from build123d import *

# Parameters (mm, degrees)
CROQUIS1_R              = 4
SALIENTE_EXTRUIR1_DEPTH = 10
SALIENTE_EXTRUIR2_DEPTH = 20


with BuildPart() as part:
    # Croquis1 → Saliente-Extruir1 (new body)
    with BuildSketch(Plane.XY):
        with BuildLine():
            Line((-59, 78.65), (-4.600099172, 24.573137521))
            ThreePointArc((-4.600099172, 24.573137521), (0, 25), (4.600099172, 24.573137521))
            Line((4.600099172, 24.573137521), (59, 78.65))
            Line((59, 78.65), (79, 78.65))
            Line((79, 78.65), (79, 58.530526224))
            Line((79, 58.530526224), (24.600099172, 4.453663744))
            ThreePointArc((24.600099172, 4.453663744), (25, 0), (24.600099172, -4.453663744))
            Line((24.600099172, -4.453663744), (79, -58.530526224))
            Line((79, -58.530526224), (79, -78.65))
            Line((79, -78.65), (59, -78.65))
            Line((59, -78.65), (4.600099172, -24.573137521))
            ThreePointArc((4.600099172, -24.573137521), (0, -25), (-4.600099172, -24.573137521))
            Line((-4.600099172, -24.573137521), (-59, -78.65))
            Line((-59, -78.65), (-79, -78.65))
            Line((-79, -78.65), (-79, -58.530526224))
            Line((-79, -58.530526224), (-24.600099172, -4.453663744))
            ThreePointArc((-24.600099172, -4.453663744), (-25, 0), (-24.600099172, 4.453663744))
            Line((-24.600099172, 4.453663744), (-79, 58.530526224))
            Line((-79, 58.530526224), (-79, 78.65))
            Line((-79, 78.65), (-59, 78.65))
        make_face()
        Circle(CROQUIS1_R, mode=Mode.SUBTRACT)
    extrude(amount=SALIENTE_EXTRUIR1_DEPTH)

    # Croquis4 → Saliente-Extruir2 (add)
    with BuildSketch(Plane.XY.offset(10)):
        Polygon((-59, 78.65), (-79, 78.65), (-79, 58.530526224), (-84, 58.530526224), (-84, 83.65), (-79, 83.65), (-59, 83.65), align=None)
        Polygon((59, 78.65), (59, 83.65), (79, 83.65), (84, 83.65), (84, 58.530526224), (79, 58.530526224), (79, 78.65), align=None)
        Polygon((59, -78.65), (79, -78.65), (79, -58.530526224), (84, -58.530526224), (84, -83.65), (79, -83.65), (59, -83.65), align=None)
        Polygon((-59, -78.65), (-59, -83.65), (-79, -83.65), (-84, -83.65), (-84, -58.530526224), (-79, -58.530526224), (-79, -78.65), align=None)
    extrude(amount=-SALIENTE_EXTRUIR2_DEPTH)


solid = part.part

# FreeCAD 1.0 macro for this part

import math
import FreeCAD as App
import Part
import Sketcher

doc = App.newDocument("Part")
body = doc.addObject("PartDesign::Body", "Body")

sketch1 = doc.addObject("Sketcher::SketchObject", "Sketch")
body.addObject(sketch1)
sketch1.AttachmentSupport = (doc.XY_Plane, [""])
sketch1.MapMode = "FlatFace"
sketch1.addGeometry(Part.LineSegment(App.Vector(-4.600099, 24.573138, 0), App.Vector(-59, 78.65, 0)), False)
sketch1.addGeometry(Part.LineSegment(App.Vector(-59, 78.65, 0), App.Vector(-79, 78.65, 0)), False)
sketch1.addGeometry(Part.LineSegment(App.Vector(-79, 78.65, 0), App.Vector(-79, 58.530526, 0)), False)
sketch1.addGeometry(Part.LineSegment(App.Vector(-79, 58.530526, 0), App.Vector(-24.600099, 4.453664, 0)), False)
sketch1.addGeometry(Part.ArcOfCircle(Part.Circle(App.Vector(0, 0, 0), App.Vector(0, 0, 1), 25), math.radians(169.73818), math.radians(190.26182)), False)
sketch1.addGeometry(Part.LineSegment(App.Vector(-24.600099, -4.453664, 0), App.Vector(-79, -58.530526, 0)), False)
sketch1.addGeometry(Part.LineSegment(App.Vector(-79, -58.530526, 0), App.Vector(-79, -78.65, 0)), False)
sketch1.addGeometry(Part.LineSegment(App.Vector(-79, -78.65, 0), App.Vector(-59, -78.65, 0)), False)
sketch1.addGeometry(Part.LineSegment(App.Vector(-59, -78.65, 0), App.Vector(-4.600099, -24.573138, 0)), False)
sketch1.addGeometry(Part.ArcOfCircle(Part.Circle(App.Vector(0, 0, 0), App.Vector(0, 0, 1), 25), math.radians(-100.603067), math.radians(-79.396933)), False)
sketch1.addGeometry(Part.LineSegment(App.Vector(4.600099, -24.573138, 0), App.Vector(59, -78.65, 0)), False)
sketch1.addGeometry(Part.LineSegment(App.Vector(59, -78.65, 0), App.Vector(79, -78.65, 0)), False)
sketch1.addGeometry(Part.LineSegment(App.Vector(79, -78.65, 0), App.Vector(79, -58.530526, 0)), False)
sketch1.addGeometry(Part.LineSegment(App.Vector(79, -58.530526, 0), App.Vector(24.600099, -4.453664, 0)), False)
sketch1.addGeometry(Part.ArcOfCircle(Part.Circle(App.Vector(0, 0, 0), App.Vector(0, 0, 1), 25), math.radians(-10.26182), math.radians(10.26182)), False)
sketch1.addGeometry(Part.LineSegment(App.Vector(24.600099, 4.453664, 0), App.Vector(79, 58.530526, 0)), False)
sketch1.addGeometry(Part.LineSegment(App.Vector(79, 58.530526, 0), App.Vector(79, 78.65, 0)), False)
sketch1.addGeometry(Part.LineSegment(App.Vector(79, 78.65, 0), App.Vector(59, 78.65, 0)), False)
sketch1.addGeometry(Part.LineSegment(App.Vector(59, 78.65, 0), App.Vector(4.600099, 24.573138, 0)), False)
sketch1.addGeometry(Part.ArcOfCircle(Part.Circle(App.Vector(0, 0, 0), App.Vector(0, 0, 1), 25), math.radians(79.396933), math.radians(100.603067)), False)
sketch1.addGeometry(Part.Circle(App.Vector(0, 0, 0), App.Vector(0, 0, 1), 4), False)
sketch1.addConstraint(Sketcher.Constraint("Coincident", 0, 2, 1, 1))
sketch1.addConstraint(Sketcher.Constraint("Coincident", 1, 2, 2, 1))
sketch1.addConstraint(Sketcher.Constraint("Coincident", 2, 2, 3, 1))
sketch1.addConstraint(Sketcher.Constraint("Coincident", 3, 2, 4, 1))
sketch1.addConstraint(Sketcher.Constraint("Coincident", 4, 2, 5, 1))
sketch1.addConstraint(Sketcher.Constraint("Coincident", 5, 2, 6, 1))
sketch1.addConstraint(Sketcher.Constraint("Coincident", 6, 2, 7, 1))
sketch1.addConstraint(Sketcher.Constraint("Coincident", 7, 2, 8, 1))
sketch1.addConstraint(Sketcher.Constraint("Coincident", 8, 2, 9, 1))
sketch1.addConstraint(Sketcher.Constraint("Coincident", 9, 2, 10, 1))
sketch1.addConstraint(Sketcher.Constraint("Coincident", 10, 2, 11, 1))
sketch1.addConstraint(Sketcher.Constraint("Coincident", 11, 2, 12, 1))
sketch1.addConstraint(Sketcher.Constraint("Coincident", 12, 2, 13, 1))
sketch1.addConstraint(Sketcher.Constraint("Coincident", 13, 2, 14, 1))
sketch1.addConstraint(Sketcher.Constraint("Coincident", 14, 2, 15, 1))
sketch1.addConstraint(Sketcher.Constraint("Coincident", 15, 2, 16, 1))
sketch1.addConstraint(Sketcher.Constraint("Coincident", 16, 2, 17, 1))
sketch1.addConstraint(Sketcher.Constraint("Coincident", 17, 2, 18, 1))
sketch1.addConstraint(Sketcher.Constraint("Coincident", 18, 2, 19, 1))
sketch1.addConstraint(Sketcher.Constraint("Coincident", 19, 2, 0, 1))
sketch1.addConstraint(Sketcher.Constraint("Horizontal", 1))
sketch1.addConstraint(Sketcher.Constraint("Vertical", 2))
sketch1.addConstraint(Sketcher.Constraint("Vertical", 6))
sketch1.addConstraint(Sketcher.Constraint("Horizontal", 7))
sketch1.addConstraint(Sketcher.Constraint("Horizontal", 11))
sketch1.addConstraint(Sketcher.Constraint("Vertical", 12))
sketch1.addConstraint(Sketcher.Constraint("Vertical", 16))
sketch1.addConstraint(Sketcher.Constraint("Horizontal", 17))
sketch1.addConstraint(Sketcher.Constraint("Coincident", 4, 3, -1, 1))
sketch1.addConstraint(Sketcher.Constraint("Coincident", 9, 3, -1, 1))
sketch1.addConstraint(Sketcher.Constraint("Coincident", 14, 3, -1, 1))
sketch1.addConstraint(Sketcher.Constraint("Coincident", 19, 3, -1, 1))
sketch1.addConstraint(Sketcher.Constraint("Coincident", 20, 3, -1, 1))
sketch1.addConstraint(Sketcher.Constraint("Equal", 4, 9))
sketch1.addConstraint(Sketcher.Constraint("Equal", 9, 14))
sketch1.addConstraint(Sketcher.Constraint("Equal", 14, 19))
sketch1.addConstraint(Sketcher.Constraint("Symmetric", 0, 2, 10, 2, -1, 1))
sketch1.addConstraint(Sketcher.Constraint("Symmetric", 2, 2, 12, 2, -1, 1))
sketch1.addConstraint(Sketcher.Constraint("Symmetric", 5, 2, 15, 2, -1, 1))
sketch1.addConstraint(Sketcher.Constraint("Symmetric", 7, 2, 17, 2, -1, 1))
sketch1.addConstraint(Sketcher.Constraint("Symmetric", 7, 2, 10, 2, -2))
sketch1.addConstraint(Sketcher.Constraint("Symmetric", 5, 2, 12, 2, -2))
sketch1.addConstraint(Sketcher.Constraint("Parallel", 0, 3))
sketch1.addConstraint(Sketcher.Constraint("Parallel", 5, 8))
sketch1.addConstraint(Sketcher.Constraint("Parallel", 3, 10))
sketch1.addConstraint(Sketcher.Constraint("Parallel", 10, 13))
sketch1.addConstraint(Sketcher.Constraint("Parallel", 8, 15))
sketch1.addConstraint(Sketcher.Constraint("Parallel", 15, 18))
sketch1.addConstraint(Sketcher.Constraint("Horizontal", 8, 2, 9, 2))
sketch1.addConstraint(Sketcher.Constraint("Equal", 0, 3))
sketch1.addConstraint(Sketcher.Constraint("Diameter", 20, 8.0))
sketch1.addConstraint(Sketcher.Constraint("Radius", 4, 25.0))
sketch1.addConstraint(Sketcher.Constraint("DistanceX", 1, 2, 1, 1, 20.0))
sketch1.addConstraint(Sketcher.Constraint("DistanceX", 0, 2, -1, 1, 59.0))
sketch1.addConstraint(Sketcher.Constraint("DistanceY", -1, 1, 0, 2, 78.65))
sketch1.addConstraint(Sketcher.Constraint("DistanceX", 3, 2, -1, 1, 24.600099))
pad1 = doc.addObject("PartDesign::Pad", "Pad")
body.addObject(pad1)
pad1.Profile = sketch1
pad1.Length = 10

sketch2 = doc.addObject("Sketcher::SketchObject", "Sketch001")
body.addObject(sketch2)
sketch2.AttachmentSupport = (doc.XY_Plane, [""])
sketch2.MapMode = "FlatFace"
sketch2.AttachmentOffset = App.Placement(App.Vector(0, 0, 10), App.Rotation())
sketch2.addGeometry(Part.LineSegment(App.Vector(-79, 78.65, 0), App.Vector(-59, 78.65, 0)), False)
sketch2.addGeometry(Part.LineSegment(App.Vector(-59, 78.65, 0), App.Vector(-59, 83.65, 0)), False)
sketch2.addGeometry(Part.LineSegment(App.Vector(-59, 83.65, 0), App.Vector(-84, 83.65, 0)), False)
sketch2.addGeometry(Part.LineSegment(App.Vector(-84, 83.65, 0), App.Vector(-84, 58.530526, 0)), False)
sketch2.addGeometry(Part.LineSegment(App.Vector(-84, 58.530526, 0), App.Vector(-79, 58.530526, 0)), False)
sketch2.addGeometry(Part.LineSegment(App.Vector(-79, 58.530526, 0), App.Vector(-79, 78.65, 0)), False)
sketch2.addGeometry(Part.LineSegment(App.Vector(59, 83.65, 0), App.Vector(59, 78.65, 0)), False)
sketch2.addGeometry(Part.LineSegment(App.Vector(59, 78.65, 0), App.Vector(79, 78.65, 0)), False)
sketch2.addGeometry(Part.LineSegment(App.Vector(79, 78.65, 0), App.Vector(79, 58.530526, 0)), False)
sketch2.addGeometry(Part.LineSegment(App.Vector(79, 58.530526, 0), App.Vector(84, 58.530526, 0)), False)
sketch2.addGeometry(Part.LineSegment(App.Vector(84, 58.530526, 0), App.Vector(84, 83.65, 0)), False)
sketch2.addGeometry(Part.LineSegment(App.Vector(84, 83.65, 0), App.Vector(59, 83.65, 0)), False)
sketch2.addGeometry(Part.LineSegment(App.Vector(79, -78.65, 0), App.Vector(59, -78.65, 0)), False)
sketch2.addGeometry(Part.LineSegment(App.Vector(59, -78.65, 0), App.Vector(59, -83.65, 0)), False)
sketch2.addGeometry(Part.LineSegment(App.Vector(59, -83.65, 0), App.Vector(84, -83.65, 0)), False)
sketch2.addGeometry(Part.LineSegment(App.Vector(84, -83.65, 0), App.Vector(84, -58.530526, 0)), False)
sketch2.addGeometry(Part.LineSegment(App.Vector(84, -58.530526, 0), App.Vector(79, -58.530526, 0)), False)
sketch2.addGeometry(Part.LineSegment(App.Vector(79, -58.530526, 0), App.Vector(79, -78.65, 0)), False)
sketch2.addGeometry(Part.LineSegment(App.Vector(-59, -83.65, 0), App.Vector(-59, -78.65, 0)), False)
sketch2.addGeometry(Part.LineSegment(App.Vector(-59, -78.65, 0), App.Vector(-79, -78.65, 0)), False)
sketch2.addGeometry(Part.LineSegment(App.Vector(-79, -78.65, 0), App.Vector(-79, -58.530526, 0)), False)
sketch2.addGeometry(Part.LineSegment(App.Vector(-79, -58.530526, 0), App.Vector(-84, -58.530526, 0)), False)
sketch2.addGeometry(Part.LineSegment(App.Vector(-84, -58.530526, 0), App.Vector(-84, -83.65, 0)), False)
sketch2.addGeometry(Part.LineSegment(App.Vector(-84, -83.65, 0), App.Vector(-59, -83.65, 0)), False)
sketch2.addConstraint(Sketcher.Constraint("Coincident", 0, 2, 1, 1))
sketch2.addConstraint(Sketcher.Constraint("Coincident", 1, 2, 2, 1))
sketch2.addConstraint(Sketcher.Constraint("Coincident", 2, 2, 3, 1))
sketch2.addConstraint(Sketcher.Constraint("Coincident", 3, 2, 4, 1))
sketch2.addConstraint(Sketcher.Constraint("Coincident", 4, 2, 5, 1))
sketch2.addConstraint(Sketcher.Constraint("Coincident", 5, 2, 0, 1))
sketch2.addConstraint(Sketcher.Constraint("Coincident", 6, 2, 7, 1))
sketch2.addConstraint(Sketcher.Constraint("Coincident", 7, 2, 8, 1))
sketch2.addConstraint(Sketcher.Constraint("Coincident", 8, 2, 9, 1))
sketch2.addConstraint(Sketcher.Constraint("Coincident", 9, 2, 10, 1))
sketch2.addConstraint(Sketcher.Constraint("Coincident", 10, 2, 11, 1))
sketch2.addConstraint(Sketcher.Constraint("Coincident", 11, 2, 6, 1))
sketch2.addConstraint(Sketcher.Constraint("Coincident", 12, 2, 13, 1))
sketch2.addConstraint(Sketcher.Constraint("Coincident", 13, 2, 14, 1))
sketch2.addConstraint(Sketcher.Constraint("Coincident", 14, 2, 15, 1))
sketch2.addConstraint(Sketcher.Constraint("Coincident", 15, 2, 16, 1))
sketch2.addConstraint(Sketcher.Constraint("Coincident", 16, 2, 17, 1))
sketch2.addConstraint(Sketcher.Constraint("Coincident", 17, 2, 12, 1))
sketch2.addConstraint(Sketcher.Constraint("Coincident", 18, 2, 19, 1))
sketch2.addConstraint(Sketcher.Constraint("Coincident", 19, 2, 20, 1))
sketch2.addConstraint(Sketcher.Constraint("Coincident", 20, 2, 21, 1))
sketch2.addConstraint(Sketcher.Constraint("Coincident", 21, 2, 22, 1))
sketch2.addConstraint(Sketcher.Constraint("Coincident", 22, 2, 23, 1))
sketch2.addConstraint(Sketcher.Constraint("Coincident", 23, 2, 18, 1))
sketch2.addConstraint(Sketcher.Constraint("Horizontal", 0))
sketch2.addConstraint(Sketcher.Constraint("Vertical", 1))
sketch2.addConstraint(Sketcher.Constraint("Horizontal", 2))
sketch2.addConstraint(Sketcher.Constraint("Vertical", 3))
sketch2.addConstraint(Sketcher.Constraint("Horizontal", 4))
sketch2.addConstraint(Sketcher.Constraint("Vertical", 5))
sketch2.addConstraint(Sketcher.Constraint("Vertical", 6))
sketch2.addConstraint(Sketcher.Constraint("Horizontal", 7))
sketch2.addConstraint(Sketcher.Constraint("Vertical", 8))
sketch2.addConstraint(Sketcher.Constraint("Horizontal", 9))
sketch2.addConstraint(Sketcher.Constraint("Vertical", 10))
sketch2.addConstraint(Sketcher.Constraint("Horizontal", 11))
sketch2.addConstraint(Sketcher.Constraint("Horizontal", 12))
sketch2.addConstraint(Sketcher.Constraint("Vertical", 13))
sketch2.addConstraint(Sketcher.Constraint("Horizontal", 14))
sketch2.addConstraint(Sketcher.Constraint("Vertical", 15))
sketch2.addConstraint(Sketcher.Constraint("Horizontal", 16))
sketch2.addConstraint(Sketcher.Constraint("Vertical", 17))
sketch2.addConstraint(Sketcher.Constraint("Vertical", 18))
sketch2.addConstraint(Sketcher.Constraint("Horizontal", 19))
sketch2.addConstraint(Sketcher.Constraint("Vertical", 20))
sketch2.addConstraint(Sketcher.Constraint("Horizontal", 21))
sketch2.addConstraint(Sketcher.Constraint("Vertical", 22))
sketch2.addConstraint(Sketcher.Constraint("Horizontal", 23))
sketch2.addConstraint(Sketcher.Constraint("Symmetric", 0, 2, 12, 2, -1, 1))
sketch2.addConstraint(Sketcher.Constraint("Symmetric", 2, 2, 14, 2, -1, 1))
sketch2.addConstraint(Sketcher.Constraint("Symmetric", 4, 2, 16, 2, -1, 1))
sketch2.addConstraint(Sketcher.Constraint("Symmetric", 6, 2, 18, 2, -1, 1))
sketch2.addConstraint(Sketcher.Constraint("Symmetric", 8, 2, 20, 2, -1, 1))
sketch2.addConstraint(Sketcher.Constraint("Symmetric", 10, 2, 22, 2, -1, 1))
sketch2.addConstraint(Sketcher.Constraint("Symmetric", 0, 2, 6, 2, -2))
sketch2.addConstraint(Sketcher.Constraint("Symmetric", 4, 2, 8, 2, -2))
sketch2.addConstraint(Sketcher.Constraint("Symmetric", 2, 2, 10, 2, -2))
sketch2.addConstraint(Sketcher.Constraint("Equal", 21, 1))
sketch2.addConstraint(Sketcher.Constraint("DistanceX", 0, 1, 0, 2, 20.0))
sketch2.addConstraint(Sketcher.Constraint("DistanceX", 2, 2, 2, 1, 25.0))
sketch2.addConstraint(Sketcher.Constraint("DistanceX", 0, 2, -1, 1, 59.0))
sketch2.addConstraint(Sketcher.Constraint("DistanceY", 12, 2, 6, 2, 157.3))
sketch2.addConstraint(Sketcher.Constraint("DistanceY", 3, 2, 3, 1, 25.119474))
pad2 = doc.addObject("PartDesign::Pad", "Pad001")
body.addObject(pad2)
pad2.Profile = sketch2
pad2.Length = 20
pad2.Reversed = True

doc.recompute()
